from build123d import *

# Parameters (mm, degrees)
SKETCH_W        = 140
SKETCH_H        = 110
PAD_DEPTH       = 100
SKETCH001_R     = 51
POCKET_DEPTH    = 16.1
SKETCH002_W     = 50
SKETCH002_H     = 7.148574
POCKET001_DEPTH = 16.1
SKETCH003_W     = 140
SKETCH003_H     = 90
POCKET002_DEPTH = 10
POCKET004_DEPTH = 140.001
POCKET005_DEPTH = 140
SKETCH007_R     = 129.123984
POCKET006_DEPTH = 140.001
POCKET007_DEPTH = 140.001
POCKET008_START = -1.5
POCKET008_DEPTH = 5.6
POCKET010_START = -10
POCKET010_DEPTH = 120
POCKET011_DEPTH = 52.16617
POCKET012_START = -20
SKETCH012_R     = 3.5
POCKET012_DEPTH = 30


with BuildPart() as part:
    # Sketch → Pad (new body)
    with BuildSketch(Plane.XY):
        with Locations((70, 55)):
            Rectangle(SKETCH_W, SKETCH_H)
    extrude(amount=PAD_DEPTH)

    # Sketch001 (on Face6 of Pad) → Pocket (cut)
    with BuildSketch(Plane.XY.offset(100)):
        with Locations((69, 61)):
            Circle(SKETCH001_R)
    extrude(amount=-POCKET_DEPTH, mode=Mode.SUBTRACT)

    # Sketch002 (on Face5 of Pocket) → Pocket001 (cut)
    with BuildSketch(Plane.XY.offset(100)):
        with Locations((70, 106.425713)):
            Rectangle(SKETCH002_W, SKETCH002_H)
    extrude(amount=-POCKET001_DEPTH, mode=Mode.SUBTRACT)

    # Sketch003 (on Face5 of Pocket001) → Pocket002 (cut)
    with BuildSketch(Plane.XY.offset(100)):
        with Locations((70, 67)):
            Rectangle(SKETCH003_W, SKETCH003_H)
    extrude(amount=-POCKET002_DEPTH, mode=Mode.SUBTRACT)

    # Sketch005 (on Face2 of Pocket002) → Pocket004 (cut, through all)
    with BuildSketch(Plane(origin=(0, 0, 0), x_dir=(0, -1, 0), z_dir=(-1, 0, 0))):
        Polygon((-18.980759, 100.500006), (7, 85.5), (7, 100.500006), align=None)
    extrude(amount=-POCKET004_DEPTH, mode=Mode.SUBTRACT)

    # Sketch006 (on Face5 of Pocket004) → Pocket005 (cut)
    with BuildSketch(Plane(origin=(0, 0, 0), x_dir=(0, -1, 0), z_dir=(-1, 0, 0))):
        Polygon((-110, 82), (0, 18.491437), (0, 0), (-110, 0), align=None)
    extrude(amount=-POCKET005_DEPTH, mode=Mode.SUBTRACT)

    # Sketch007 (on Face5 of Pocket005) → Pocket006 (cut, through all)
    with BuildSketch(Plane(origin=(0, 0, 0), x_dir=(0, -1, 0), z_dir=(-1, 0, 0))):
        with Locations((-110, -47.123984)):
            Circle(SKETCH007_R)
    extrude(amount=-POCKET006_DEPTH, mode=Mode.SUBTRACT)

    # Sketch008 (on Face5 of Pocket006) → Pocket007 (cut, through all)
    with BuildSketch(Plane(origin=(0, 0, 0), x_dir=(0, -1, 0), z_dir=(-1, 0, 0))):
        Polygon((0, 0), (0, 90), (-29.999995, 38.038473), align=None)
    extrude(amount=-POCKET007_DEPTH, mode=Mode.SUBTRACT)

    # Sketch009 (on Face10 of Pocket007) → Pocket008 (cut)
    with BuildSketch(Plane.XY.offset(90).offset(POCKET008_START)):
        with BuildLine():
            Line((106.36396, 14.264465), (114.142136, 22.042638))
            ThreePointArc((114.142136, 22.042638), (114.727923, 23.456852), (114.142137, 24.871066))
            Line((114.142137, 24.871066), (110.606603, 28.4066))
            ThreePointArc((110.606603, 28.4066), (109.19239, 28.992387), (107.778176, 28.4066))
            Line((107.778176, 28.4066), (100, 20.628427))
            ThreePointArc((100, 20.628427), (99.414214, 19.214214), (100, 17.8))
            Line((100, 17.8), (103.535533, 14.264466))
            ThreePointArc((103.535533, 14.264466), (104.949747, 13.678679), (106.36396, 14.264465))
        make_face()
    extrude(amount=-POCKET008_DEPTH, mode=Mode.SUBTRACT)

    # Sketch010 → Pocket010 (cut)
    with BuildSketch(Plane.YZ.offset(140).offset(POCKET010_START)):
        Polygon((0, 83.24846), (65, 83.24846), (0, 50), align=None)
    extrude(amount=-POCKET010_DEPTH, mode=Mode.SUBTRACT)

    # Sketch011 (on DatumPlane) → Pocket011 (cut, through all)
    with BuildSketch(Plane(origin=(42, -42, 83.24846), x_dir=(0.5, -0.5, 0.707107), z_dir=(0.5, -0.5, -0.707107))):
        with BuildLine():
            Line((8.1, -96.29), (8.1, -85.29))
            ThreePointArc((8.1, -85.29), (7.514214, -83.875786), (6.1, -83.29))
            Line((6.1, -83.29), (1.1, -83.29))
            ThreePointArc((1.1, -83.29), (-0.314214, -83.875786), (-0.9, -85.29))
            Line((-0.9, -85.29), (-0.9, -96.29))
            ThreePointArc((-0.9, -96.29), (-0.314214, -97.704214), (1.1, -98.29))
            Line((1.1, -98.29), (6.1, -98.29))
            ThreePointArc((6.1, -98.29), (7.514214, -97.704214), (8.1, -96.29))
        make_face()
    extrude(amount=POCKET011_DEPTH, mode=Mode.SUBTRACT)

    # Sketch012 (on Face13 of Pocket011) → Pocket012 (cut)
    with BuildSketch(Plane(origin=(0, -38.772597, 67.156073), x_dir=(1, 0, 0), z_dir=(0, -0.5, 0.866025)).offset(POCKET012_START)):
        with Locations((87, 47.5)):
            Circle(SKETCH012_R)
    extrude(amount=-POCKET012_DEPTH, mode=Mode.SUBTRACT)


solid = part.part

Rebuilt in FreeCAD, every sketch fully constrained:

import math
import FreeCAD as App
import Part
import Sketcher
from FreeCAD import Vector
Q = App.Units.Quantity


def add_polygon(sketch, points):
    """Adds a closed chain of lines whose ends are joined by coincident constraints."""
    first, n = sketch.GeometryCount, len(points)
    for a, b in zip(points, points[1:] + points[:1]):
        sketch.addGeometry(Part.LineSegment(App.Vector(*a, 0), App.Vector(*b, 0)), False)
    for i in range(n):
        sketch.addConstraint(Sketcher.Constraint("Coincident", first + i, 2, first + (i + 1) % n, 1))

doc = App.newDocument("Part")
body = doc.addObject("PartDesign::Body", "Body")

# Sketch on XY plane
sketch1 = body.newObject("Sketcher::SketchObject", "Sketch")
sketch1.AttachmentSupport = (doc.getObject("XY_Plane"), [""])
sketch1.MapMode = "FlatFace"
add_polygon(sketch1, [(0, 110), (0, 0), (140, 0), (140, 110)])  # lines 0-3
sketch1.addConstraint([
    Sketcher.Constraint("Vertical", 0),
    Sketcher.Constraint("Horizontal", 1),
    Sketcher.Constraint("Vertical", 2),
    Sketcher.Constraint("Horizontal", 3),
    Sketcher.Constraint("Coincident", 0, 2, -1, 1),
    Sketcher.Constraint("DistanceX", 1, 1, 1, 2, 140.0),
    Sketcher.Constraint("DistanceY", 0, 2, 0, 1, 110.0),
])
pad1 = body.newObject("PartDesign::Pad", "Pad")
pad1.Profile = sketch1
pad1.Length = 100

# Sketch on XY plane
sketch2 = body.newObject("Sketcher::SketchObject", "Sketch001")
sketch2.AttachmentSupport = (doc.getObject("XY_Plane"), [""])
sketch2.MapMode = "FlatFace"
sketch2.AttachmentOffset = App.Placement(Vector(0, 0, 100), App.Rotation())
sketch2.addGeometry(Part.Circle(Vector(69, 61, 0), Vector(0, 0, 1), 51), False)
sketch2.addConstraint([
    Sketcher.Constraint("Diameter", 0, 102.0),
    Sketcher.Constraint("DistanceX", -1, 1, 0, 3, 69.0),
    Sketcher.Constraint("DistanceY", -1, 1, 0, 3, 61.0),
])
pocket1 = body.newObject("PartDesign::Pocket", "Pocket")
pocket1.Profile = sketch2
pocket1.Length = 16.1

# Sketch on XY plane
sketch3 = body.newObject("Sketcher::SketchObject", "Sketch002")
sketch3.AttachmentSupport = (doc.getObject("XY_Plane"), [""])
sketch3.MapMode = "FlatFace"
sketch3.AttachmentOffset = App.Placement(Vector(0, 0, 100), App.Rotation())
add_polygon(sketch3, [(45, 110), (45, 103), (95, 103), (95, 110)])  # lines 0-3
sketch3.addConstraint([
    Sketcher.Constraint("Vertical", 0),
    Sketcher.Constraint("Horizontal", 1),
    Sketcher.Constraint("Vertical", 2),
    Sketcher.Constraint("Horizontal", 3),
    Sketcher.Constraint("DistanceX", 1, 1, 1, 2, 50.0),
    Sketcher.Constraint("DistanceX", -1, 1, 0, 2, 45.0),
    Sketcher.Constraint("DistanceY", -1, 1, 2, 2, 110.0),
    Sketcher.Constraint("DistanceY", 0, 2, 0, 1, 7.148574),
])
pocket2 = body.newObject("PartDesign::Pocket", "Pocket001")
pocket2.Profile = sketch3
pocket2.Length = 16.1

# Sketch on XY plane
sketch4 = body.newObject("Sketcher::SketchObject", "Sketch003")
sketch4.AttachmentSupport = (doc.getObject("XY_Plane"), [""])
sketch4.MapMode = "FlatFace"
sketch4.AttachmentOffset = App.Placement(Vector(0, 0, 100), App.Rotation())
add_polygon(sketch4, [(0, 112), (0, 22), (140, 22), (140, 112)])  # lines 0-3
sketch4.addConstraint([
    Sketcher.Constraint("Vertical", 0),
    Sketcher.Constraint("Horizontal", 1),
    Sketcher.Constraint("Vertical", 2),
    Sketcher.Constraint("Horizontal", 3),
    Sketcher.Constraint("PointOnObject", 0, 2, -2),
    Sketcher.Constraint("DistanceX", 1, 1, 1, 2, 140.0),
    Sketcher.Constraint("DistanceY", 0, 2, 0, 1, 90.0),
    Sketcher.Constraint("DistanceY", -1, 1, 0, 2, 22.0),
])
pocket3 = body.newObject("PartDesign::Pocket", "Pocket002")
pocket3.Profile = sketch4
pocket3.Length = 10

# Sketch on YZ plane
sketch5 = body.newObject("Sketcher::SketchObject", "Sketch004")
sketch5.AttachmentSupport = (doc.getObject("YZ_Plane"), [""])
sketch5.MapMode = "FlatFace"
add_polygon(sketch5, [(19, 101), (-7, 86), (-7, 101)])  # lines 0-2
sketch5.addConstraint([
    Sketcher.Constraint("Vertical", 1),
    Sketcher.Constraint("Horizontal", 2),
    Sketcher.Constraint("Angle", 0, Q("-149.999987 deg")),
    Sketcher.Constraint("Distance", 0, 30.0),
    Sketcher.Constraint("DistanceX", 0, 2, -1, 1, 7.0),
    Sketcher.Constraint("DistanceY", -1, 1, 0, 2, 85.5),
])
pocket4 = body.newObject("PartDesign::Pocket", "Pocket003")
pocket4.Profile = sketch5
pocket4.Type = "ThroughAll"
pocket4.Reversed = True

# Sketch on YZ plane
sketch6 = body.newObject("Sketcher::SketchObject", "Sketch005")
sketch6.AttachmentSupport = (doc.getObject("YZ_Plane"), [""])
sketch6.MapMode = "FlatFace"
add_polygon(sketch6, [(0, 18), (110, 82), (110, 0), (0, 0)])  # lines 0-3
sketch6.addConstraint([
    Sketcher.Constraint("Vertical", 1),
    Sketcher.Constraint("Horizontal", 2),
    Sketcher.Constraint("Vertical", 3),
    Sketcher.Constraint("Coincident", 2, 2, -1, 1),
    Sketcher.Constraint("DistanceX", 2, 2, 2, 1, 110.0),
    Sketcher.Constraint("DistanceY", 1, 2, 1, 1, 82.0),
    Sketcher.Constraint("Angle", 0, Q("30.000013 deg")),
])
pocket5 = body.newObject("PartDesign::Pocket", "Pocket004")
pocket5.Profile = sketch6
pocket5.Length = 140
pocket5.Reversed = True

# Sketch on YZ plane
sketch7 = body.newObject("Sketcher::SketchObject", "Sketch006")
sketch7.AttachmentSupport = (doc.getObject("YZ_Plane"), [""])
sketch7.MapMode = "FlatFace"
sketch7.addGeometry(Part.Circle(Vector(110, -47, 0), Vector(0, 0, 1), 129), False)
sketch7.addConstraint([
    Sketcher.Constraint("DistanceX", -1, 1, 0, 3, 110.0),
    Sketcher.Constraint("Diameter", 0, 258.247968),
    Sketcher.Constraint("DistanceY", 0, 3, -1, 1, 47.123984),
])
pocket6 = body.newObject("PartDesign::Pocket", "Pocket005")
pocket6.Profile = sketch7
pocket6.Type = "ThroughAll"
pocket6.Reversed = True

# Sketch on YZ plane
sketch8 = body.newObject("Sketcher::SketchObject", "Sketch007")
sketch8.AttachmentSupport = (doc.getObject("YZ_Plane"), [""])
sketch8.MapMode = "FlatFace"
add_polygon(sketch8, [(0, 0), (0, 90), (30, 38)])  # lines 0-2
sketch8.addConstraint([
    Sketcher.Constraint("Vertical", 0),
    Sketcher.Constraint("Coincident", 2, 2, -1, 1),
    Sketcher.Constraint("DistanceY", 0, 1, 0, 2, 90.0),
    Sketcher.Constraint("Angle", 1, Q("-60.000005 deg")),
    Sketcher.Constraint("Distance", 1, 60.0),
])
pocket7 = body.newObject("PartDesign::Pocket", "Pocket006")
pocket7.Profile = sketch8
pocket7.Type = "ThroughAll"
pocket7.Reversed = True

# Sketch on XY plane
sketch9 = body.newObject("Sketcher::SketchObject", "Sketch008")
sketch9.AttachmentSupport = (doc.getObject("XY_Plane"), [""])
sketch9.MapMode = "FlatFace"
sketch9.AttachmentOffset = App.Placement(Vector(0, 0, 88.5), App.Rotation())
sketch9.addGeometry([
    Part.LineSegment(Vector(106.4, 14.3, 0), Vector(114.1, 22, 0)),  # 0
    Part.ArcOfCircle(Part.Circle(Vector(112.7, 23.5, 0), Vector(0, 0, 1), 2), math.radians(-45), math.radians(45)),  # 1
    Part.LineSegment(Vector(114.1, 24.9, 0), Vector(110.6, 28.4, 0)),  # 2
    Part.ArcOfCircle(Part.Circle(Vector(109.2, 27, 0), Vector(0, 0, 1), 2), math.radians(45), math.radians(135)),  # 3
    Part.LineSegment(Vector(107.8, 28.4, 0), Vector(100, 20.6, 0)),  # 4
    Part.ArcOfCircle(Part.Circle(Vector(101.4, 19.2, 0), Vector(0, 0, 1), 2), math.radians(135), math.radians(225)),  # 5
    Part.LineSegment(Vector(100, 17.8, 0), Vector(103.5, 14.3, 0)),  # 6
    Part.ArcOfCircle(Part.Circle(Vector(104.9, 15.7, 0), Vector(0, 0, 1), 2), math.radians(-135), math.radians(-45)),  # 7
], False)
sketch9.addConstraint([
    Sketcher.Constraint("Tangent", 0, 2, 1, 1),
    Sketcher.Constraint("Tangent", 1, 2, 2, 1),
    Sketcher.Constraint("Tangent", 2, 2, 3, 1),
    Sketcher.Constraint("Tangent", 3, 2, 4, 1),
    Sketcher.Constraint("Tangent", 4, 2, 5, 1),
    Sketcher.Constraint("Tangent", 5, 2, 6, 1),
    Sketcher.Constraint("Tangent", 6, 2, 7, 1),
    Sketcher.Constraint("Tangent", 7, 2, 0, 1),
    Sketcher.Constraint("Equal", 1, 5),
    Sketcher.Constraint("Equal", 5, 7),
    Sketcher.Constraint("Perpendicular", 0, 2),
    Sketcher.Constraint("Perpendicular", 2, 4),
    Sketcher.Constraint("Perpendicular", 4, 6),
    Sketcher.Constraint("Horizontal", 2, 2, 3, 2),
    Sketcher.Constraint("Equal", 0, 4),
    Sketcher.Constraint("Radius", 1, 2.000001),
    Sketcher.Constraint("Distance", 0, 11.0),
    Sketcher.Constraint("Distance", 2, 5.0),
    Sketcher.Constraint("DistanceX", -1, 1, 4, 2, 100.0),
    Sketcher.Constraint("DistanceY", -1, 1, 5, 2, 17.8),
])
pocket8 = body.newObject("PartDesign::Pocket", "Pocket007")
pocket8.Profile = sketch9
pocket8.Length = 5.6

# Sketch on YZ plane
sketch10 = body.newObject("Sketcher::SketchObject", "Sketch009")
sketch10.AttachmentSupport = (doc.getObject("YZ_Plane"), [""])
sketch10.MapMode = "FlatFace"
sketch10.AttachmentOffset = App.Placement(Vector(0, 0, 130), App.Rotation())
add_polygon(sketch10, [(65, 83), (0, 83), (0, 50)])  # lines 0-2
sketch10.addConstraint([
    Sketcher.Constraint("Horizontal", 0),
    Sketcher.Constraint("Vertical", 1),
    Sketcher.Constraint("PointOnObject", 0, 2, -2),
    Sketcher.Constraint("DistanceX", 0, 2, 0, 1, 65.0),
    Sketcher.Constraint("DistanceY", -1, 1, 1, 2, 50.0),
    Sketcher.Constraint("Distance", 2, 73.01),
])
pocket9 = body.newObject("PartDesign::Pocket", "Pocket008")
pocket9.Profile = sketch10
pocket9.Length = 120

# Sketch on an angled plane
sketch11 = body.newObject("Sketcher::SketchObject", "Sketch010")
sketch11.Placement = App.Placement(Vector(42, -42, 83.24846), App.Rotation(Vector(0.500000077, -0.500000077, 0.707106672), Vector(-0.707106782, -0.707106782, 0), Vector(0.499999923, -0.499999923, -0.707106891), "ZXY"))
sketch11.addGeometry([
    Part.LineSegment(Vector(8.1, -96.3, 0), Vector(8.1, -85.3, 0)),  # 0
    Part.ArcOfCircle(Part.Circle(Vector(6.1, -85.3, 0), Vector(0, 0, 1), 2), math.radians(0), math.radians(90)),  # 1
    Part.LineSegment(Vector(6.1, -83.3, 0), Vector(1.1, -83.3, 0)),  # 2
    Part.ArcOfCircle(Part.Circle(Vector(1.1, -85.3, 0), Vector(0, 0, 1), 2), math.radians(90), math.radians(180)),  # 3
    Part.LineSegment(Vector(-0.9, -85.3, 0), Vector(-0.9, -96.3, 0)),  # 4
    Part.ArcOfCircle(Part.Circle(Vector(1.1, -96.3, 0), Vector(0, 0, 1), 2), math.radians(180), math.radians(270)),  # 5
    Part.LineSegment(Vector(1.1, -98.3, 0), Vector(6.1, -98.3, 0)),  # 6
    Part.ArcOfCircle(Part.Circle(Vector(6.1, -96.3, 0), Vector(0, 0, 1), 2), math.radians(-90), math.radians(0)),  # 7
], False)
sketch11.addConstraint([
    Sketcher.Constraint("Tangent", 0, 2, 1, 1),
    Sketcher.Constraint("Tangent", 1, 2, 2, 1),
    Sketcher.Constraint("Tangent", 2, 2, 3, 1),
    Sketcher.Constraint("Tangent", 3, 2, 4, 1),
    Sketcher.Constraint("Tangent", 4, 2, 5, 1),
    Sketcher.Constraint("Tangent", 5, 2, 6, 1),
    Sketcher.Constraint("Tangent", 6, 2, 7, 1),
    Sketcher.Constraint("Tangent", 7, 2, 0, 1),
    Sketcher.Constraint("Vertical", 0),
    Sketcher.Constraint("Horizontal", 2),
    Sketcher.Constraint("Vertical", 4),
    Sketcher.Constraint("Horizontal", 6),
    Sketcher.Constraint("Equal", 1, 3),
    Sketcher.Constraint("Equal", 3, 5),
    Sketcher.Constraint("Equal", 5, 7),
    Sketcher.Constraint("Radius", 1, 1.999999),
    Sketcher.Constraint("DistanceX", 2, 2, 2, 1, 5.0),
    Sketcher.Constraint("DistanceY", 0, 1, 0, 2, 11.0),
    Sketcher.Constraint("DistanceX", -1, 1, 1, 3, 6.100001),
    Sketcher.Constraint("DistanceY", 1, 3, -1, 1, 85.289999),
])
pocket10 = body.newObject("PartDesign::Pocket", "Pocket009")
pocket10.Profile = sketch11
pocket10.Type = "ThroughAll"
pocket10.Reversed = True

# Sketch on an angled plane
sketch12 = body.newObject("Sketcher::SketchObject", "Sketch011")
sketch12.Placement = App.Placement(Vector(0, -28.772594, 49.835567), App.Rotation(Vector(1, 0, 0), Vector(0, 0.866025303, 0.500000175), Vector(0, -0.500000175, 0.866025303), "ZXY"))
sketch12.addGeometry(Part.Circle(Vector(87, 47.5, 0), Vector(0, 0, 1), 3.5), False)
sketch12.addConstraint([
    Sketcher.Constraint("Diameter", 0, 7.0),
    Sketcher.Constraint("DistanceX", -1, 1, 0, 3, 87.0),
    Sketcher.Constraint("DistanceY", -1, 1, 0, 3, 47.5),
])
pocket11 = body.newObject("PartDesign::Pocket", "Pocket010")
pocket11.Profile = sketch12
pocket11.Length = 30

doc.recompute()
